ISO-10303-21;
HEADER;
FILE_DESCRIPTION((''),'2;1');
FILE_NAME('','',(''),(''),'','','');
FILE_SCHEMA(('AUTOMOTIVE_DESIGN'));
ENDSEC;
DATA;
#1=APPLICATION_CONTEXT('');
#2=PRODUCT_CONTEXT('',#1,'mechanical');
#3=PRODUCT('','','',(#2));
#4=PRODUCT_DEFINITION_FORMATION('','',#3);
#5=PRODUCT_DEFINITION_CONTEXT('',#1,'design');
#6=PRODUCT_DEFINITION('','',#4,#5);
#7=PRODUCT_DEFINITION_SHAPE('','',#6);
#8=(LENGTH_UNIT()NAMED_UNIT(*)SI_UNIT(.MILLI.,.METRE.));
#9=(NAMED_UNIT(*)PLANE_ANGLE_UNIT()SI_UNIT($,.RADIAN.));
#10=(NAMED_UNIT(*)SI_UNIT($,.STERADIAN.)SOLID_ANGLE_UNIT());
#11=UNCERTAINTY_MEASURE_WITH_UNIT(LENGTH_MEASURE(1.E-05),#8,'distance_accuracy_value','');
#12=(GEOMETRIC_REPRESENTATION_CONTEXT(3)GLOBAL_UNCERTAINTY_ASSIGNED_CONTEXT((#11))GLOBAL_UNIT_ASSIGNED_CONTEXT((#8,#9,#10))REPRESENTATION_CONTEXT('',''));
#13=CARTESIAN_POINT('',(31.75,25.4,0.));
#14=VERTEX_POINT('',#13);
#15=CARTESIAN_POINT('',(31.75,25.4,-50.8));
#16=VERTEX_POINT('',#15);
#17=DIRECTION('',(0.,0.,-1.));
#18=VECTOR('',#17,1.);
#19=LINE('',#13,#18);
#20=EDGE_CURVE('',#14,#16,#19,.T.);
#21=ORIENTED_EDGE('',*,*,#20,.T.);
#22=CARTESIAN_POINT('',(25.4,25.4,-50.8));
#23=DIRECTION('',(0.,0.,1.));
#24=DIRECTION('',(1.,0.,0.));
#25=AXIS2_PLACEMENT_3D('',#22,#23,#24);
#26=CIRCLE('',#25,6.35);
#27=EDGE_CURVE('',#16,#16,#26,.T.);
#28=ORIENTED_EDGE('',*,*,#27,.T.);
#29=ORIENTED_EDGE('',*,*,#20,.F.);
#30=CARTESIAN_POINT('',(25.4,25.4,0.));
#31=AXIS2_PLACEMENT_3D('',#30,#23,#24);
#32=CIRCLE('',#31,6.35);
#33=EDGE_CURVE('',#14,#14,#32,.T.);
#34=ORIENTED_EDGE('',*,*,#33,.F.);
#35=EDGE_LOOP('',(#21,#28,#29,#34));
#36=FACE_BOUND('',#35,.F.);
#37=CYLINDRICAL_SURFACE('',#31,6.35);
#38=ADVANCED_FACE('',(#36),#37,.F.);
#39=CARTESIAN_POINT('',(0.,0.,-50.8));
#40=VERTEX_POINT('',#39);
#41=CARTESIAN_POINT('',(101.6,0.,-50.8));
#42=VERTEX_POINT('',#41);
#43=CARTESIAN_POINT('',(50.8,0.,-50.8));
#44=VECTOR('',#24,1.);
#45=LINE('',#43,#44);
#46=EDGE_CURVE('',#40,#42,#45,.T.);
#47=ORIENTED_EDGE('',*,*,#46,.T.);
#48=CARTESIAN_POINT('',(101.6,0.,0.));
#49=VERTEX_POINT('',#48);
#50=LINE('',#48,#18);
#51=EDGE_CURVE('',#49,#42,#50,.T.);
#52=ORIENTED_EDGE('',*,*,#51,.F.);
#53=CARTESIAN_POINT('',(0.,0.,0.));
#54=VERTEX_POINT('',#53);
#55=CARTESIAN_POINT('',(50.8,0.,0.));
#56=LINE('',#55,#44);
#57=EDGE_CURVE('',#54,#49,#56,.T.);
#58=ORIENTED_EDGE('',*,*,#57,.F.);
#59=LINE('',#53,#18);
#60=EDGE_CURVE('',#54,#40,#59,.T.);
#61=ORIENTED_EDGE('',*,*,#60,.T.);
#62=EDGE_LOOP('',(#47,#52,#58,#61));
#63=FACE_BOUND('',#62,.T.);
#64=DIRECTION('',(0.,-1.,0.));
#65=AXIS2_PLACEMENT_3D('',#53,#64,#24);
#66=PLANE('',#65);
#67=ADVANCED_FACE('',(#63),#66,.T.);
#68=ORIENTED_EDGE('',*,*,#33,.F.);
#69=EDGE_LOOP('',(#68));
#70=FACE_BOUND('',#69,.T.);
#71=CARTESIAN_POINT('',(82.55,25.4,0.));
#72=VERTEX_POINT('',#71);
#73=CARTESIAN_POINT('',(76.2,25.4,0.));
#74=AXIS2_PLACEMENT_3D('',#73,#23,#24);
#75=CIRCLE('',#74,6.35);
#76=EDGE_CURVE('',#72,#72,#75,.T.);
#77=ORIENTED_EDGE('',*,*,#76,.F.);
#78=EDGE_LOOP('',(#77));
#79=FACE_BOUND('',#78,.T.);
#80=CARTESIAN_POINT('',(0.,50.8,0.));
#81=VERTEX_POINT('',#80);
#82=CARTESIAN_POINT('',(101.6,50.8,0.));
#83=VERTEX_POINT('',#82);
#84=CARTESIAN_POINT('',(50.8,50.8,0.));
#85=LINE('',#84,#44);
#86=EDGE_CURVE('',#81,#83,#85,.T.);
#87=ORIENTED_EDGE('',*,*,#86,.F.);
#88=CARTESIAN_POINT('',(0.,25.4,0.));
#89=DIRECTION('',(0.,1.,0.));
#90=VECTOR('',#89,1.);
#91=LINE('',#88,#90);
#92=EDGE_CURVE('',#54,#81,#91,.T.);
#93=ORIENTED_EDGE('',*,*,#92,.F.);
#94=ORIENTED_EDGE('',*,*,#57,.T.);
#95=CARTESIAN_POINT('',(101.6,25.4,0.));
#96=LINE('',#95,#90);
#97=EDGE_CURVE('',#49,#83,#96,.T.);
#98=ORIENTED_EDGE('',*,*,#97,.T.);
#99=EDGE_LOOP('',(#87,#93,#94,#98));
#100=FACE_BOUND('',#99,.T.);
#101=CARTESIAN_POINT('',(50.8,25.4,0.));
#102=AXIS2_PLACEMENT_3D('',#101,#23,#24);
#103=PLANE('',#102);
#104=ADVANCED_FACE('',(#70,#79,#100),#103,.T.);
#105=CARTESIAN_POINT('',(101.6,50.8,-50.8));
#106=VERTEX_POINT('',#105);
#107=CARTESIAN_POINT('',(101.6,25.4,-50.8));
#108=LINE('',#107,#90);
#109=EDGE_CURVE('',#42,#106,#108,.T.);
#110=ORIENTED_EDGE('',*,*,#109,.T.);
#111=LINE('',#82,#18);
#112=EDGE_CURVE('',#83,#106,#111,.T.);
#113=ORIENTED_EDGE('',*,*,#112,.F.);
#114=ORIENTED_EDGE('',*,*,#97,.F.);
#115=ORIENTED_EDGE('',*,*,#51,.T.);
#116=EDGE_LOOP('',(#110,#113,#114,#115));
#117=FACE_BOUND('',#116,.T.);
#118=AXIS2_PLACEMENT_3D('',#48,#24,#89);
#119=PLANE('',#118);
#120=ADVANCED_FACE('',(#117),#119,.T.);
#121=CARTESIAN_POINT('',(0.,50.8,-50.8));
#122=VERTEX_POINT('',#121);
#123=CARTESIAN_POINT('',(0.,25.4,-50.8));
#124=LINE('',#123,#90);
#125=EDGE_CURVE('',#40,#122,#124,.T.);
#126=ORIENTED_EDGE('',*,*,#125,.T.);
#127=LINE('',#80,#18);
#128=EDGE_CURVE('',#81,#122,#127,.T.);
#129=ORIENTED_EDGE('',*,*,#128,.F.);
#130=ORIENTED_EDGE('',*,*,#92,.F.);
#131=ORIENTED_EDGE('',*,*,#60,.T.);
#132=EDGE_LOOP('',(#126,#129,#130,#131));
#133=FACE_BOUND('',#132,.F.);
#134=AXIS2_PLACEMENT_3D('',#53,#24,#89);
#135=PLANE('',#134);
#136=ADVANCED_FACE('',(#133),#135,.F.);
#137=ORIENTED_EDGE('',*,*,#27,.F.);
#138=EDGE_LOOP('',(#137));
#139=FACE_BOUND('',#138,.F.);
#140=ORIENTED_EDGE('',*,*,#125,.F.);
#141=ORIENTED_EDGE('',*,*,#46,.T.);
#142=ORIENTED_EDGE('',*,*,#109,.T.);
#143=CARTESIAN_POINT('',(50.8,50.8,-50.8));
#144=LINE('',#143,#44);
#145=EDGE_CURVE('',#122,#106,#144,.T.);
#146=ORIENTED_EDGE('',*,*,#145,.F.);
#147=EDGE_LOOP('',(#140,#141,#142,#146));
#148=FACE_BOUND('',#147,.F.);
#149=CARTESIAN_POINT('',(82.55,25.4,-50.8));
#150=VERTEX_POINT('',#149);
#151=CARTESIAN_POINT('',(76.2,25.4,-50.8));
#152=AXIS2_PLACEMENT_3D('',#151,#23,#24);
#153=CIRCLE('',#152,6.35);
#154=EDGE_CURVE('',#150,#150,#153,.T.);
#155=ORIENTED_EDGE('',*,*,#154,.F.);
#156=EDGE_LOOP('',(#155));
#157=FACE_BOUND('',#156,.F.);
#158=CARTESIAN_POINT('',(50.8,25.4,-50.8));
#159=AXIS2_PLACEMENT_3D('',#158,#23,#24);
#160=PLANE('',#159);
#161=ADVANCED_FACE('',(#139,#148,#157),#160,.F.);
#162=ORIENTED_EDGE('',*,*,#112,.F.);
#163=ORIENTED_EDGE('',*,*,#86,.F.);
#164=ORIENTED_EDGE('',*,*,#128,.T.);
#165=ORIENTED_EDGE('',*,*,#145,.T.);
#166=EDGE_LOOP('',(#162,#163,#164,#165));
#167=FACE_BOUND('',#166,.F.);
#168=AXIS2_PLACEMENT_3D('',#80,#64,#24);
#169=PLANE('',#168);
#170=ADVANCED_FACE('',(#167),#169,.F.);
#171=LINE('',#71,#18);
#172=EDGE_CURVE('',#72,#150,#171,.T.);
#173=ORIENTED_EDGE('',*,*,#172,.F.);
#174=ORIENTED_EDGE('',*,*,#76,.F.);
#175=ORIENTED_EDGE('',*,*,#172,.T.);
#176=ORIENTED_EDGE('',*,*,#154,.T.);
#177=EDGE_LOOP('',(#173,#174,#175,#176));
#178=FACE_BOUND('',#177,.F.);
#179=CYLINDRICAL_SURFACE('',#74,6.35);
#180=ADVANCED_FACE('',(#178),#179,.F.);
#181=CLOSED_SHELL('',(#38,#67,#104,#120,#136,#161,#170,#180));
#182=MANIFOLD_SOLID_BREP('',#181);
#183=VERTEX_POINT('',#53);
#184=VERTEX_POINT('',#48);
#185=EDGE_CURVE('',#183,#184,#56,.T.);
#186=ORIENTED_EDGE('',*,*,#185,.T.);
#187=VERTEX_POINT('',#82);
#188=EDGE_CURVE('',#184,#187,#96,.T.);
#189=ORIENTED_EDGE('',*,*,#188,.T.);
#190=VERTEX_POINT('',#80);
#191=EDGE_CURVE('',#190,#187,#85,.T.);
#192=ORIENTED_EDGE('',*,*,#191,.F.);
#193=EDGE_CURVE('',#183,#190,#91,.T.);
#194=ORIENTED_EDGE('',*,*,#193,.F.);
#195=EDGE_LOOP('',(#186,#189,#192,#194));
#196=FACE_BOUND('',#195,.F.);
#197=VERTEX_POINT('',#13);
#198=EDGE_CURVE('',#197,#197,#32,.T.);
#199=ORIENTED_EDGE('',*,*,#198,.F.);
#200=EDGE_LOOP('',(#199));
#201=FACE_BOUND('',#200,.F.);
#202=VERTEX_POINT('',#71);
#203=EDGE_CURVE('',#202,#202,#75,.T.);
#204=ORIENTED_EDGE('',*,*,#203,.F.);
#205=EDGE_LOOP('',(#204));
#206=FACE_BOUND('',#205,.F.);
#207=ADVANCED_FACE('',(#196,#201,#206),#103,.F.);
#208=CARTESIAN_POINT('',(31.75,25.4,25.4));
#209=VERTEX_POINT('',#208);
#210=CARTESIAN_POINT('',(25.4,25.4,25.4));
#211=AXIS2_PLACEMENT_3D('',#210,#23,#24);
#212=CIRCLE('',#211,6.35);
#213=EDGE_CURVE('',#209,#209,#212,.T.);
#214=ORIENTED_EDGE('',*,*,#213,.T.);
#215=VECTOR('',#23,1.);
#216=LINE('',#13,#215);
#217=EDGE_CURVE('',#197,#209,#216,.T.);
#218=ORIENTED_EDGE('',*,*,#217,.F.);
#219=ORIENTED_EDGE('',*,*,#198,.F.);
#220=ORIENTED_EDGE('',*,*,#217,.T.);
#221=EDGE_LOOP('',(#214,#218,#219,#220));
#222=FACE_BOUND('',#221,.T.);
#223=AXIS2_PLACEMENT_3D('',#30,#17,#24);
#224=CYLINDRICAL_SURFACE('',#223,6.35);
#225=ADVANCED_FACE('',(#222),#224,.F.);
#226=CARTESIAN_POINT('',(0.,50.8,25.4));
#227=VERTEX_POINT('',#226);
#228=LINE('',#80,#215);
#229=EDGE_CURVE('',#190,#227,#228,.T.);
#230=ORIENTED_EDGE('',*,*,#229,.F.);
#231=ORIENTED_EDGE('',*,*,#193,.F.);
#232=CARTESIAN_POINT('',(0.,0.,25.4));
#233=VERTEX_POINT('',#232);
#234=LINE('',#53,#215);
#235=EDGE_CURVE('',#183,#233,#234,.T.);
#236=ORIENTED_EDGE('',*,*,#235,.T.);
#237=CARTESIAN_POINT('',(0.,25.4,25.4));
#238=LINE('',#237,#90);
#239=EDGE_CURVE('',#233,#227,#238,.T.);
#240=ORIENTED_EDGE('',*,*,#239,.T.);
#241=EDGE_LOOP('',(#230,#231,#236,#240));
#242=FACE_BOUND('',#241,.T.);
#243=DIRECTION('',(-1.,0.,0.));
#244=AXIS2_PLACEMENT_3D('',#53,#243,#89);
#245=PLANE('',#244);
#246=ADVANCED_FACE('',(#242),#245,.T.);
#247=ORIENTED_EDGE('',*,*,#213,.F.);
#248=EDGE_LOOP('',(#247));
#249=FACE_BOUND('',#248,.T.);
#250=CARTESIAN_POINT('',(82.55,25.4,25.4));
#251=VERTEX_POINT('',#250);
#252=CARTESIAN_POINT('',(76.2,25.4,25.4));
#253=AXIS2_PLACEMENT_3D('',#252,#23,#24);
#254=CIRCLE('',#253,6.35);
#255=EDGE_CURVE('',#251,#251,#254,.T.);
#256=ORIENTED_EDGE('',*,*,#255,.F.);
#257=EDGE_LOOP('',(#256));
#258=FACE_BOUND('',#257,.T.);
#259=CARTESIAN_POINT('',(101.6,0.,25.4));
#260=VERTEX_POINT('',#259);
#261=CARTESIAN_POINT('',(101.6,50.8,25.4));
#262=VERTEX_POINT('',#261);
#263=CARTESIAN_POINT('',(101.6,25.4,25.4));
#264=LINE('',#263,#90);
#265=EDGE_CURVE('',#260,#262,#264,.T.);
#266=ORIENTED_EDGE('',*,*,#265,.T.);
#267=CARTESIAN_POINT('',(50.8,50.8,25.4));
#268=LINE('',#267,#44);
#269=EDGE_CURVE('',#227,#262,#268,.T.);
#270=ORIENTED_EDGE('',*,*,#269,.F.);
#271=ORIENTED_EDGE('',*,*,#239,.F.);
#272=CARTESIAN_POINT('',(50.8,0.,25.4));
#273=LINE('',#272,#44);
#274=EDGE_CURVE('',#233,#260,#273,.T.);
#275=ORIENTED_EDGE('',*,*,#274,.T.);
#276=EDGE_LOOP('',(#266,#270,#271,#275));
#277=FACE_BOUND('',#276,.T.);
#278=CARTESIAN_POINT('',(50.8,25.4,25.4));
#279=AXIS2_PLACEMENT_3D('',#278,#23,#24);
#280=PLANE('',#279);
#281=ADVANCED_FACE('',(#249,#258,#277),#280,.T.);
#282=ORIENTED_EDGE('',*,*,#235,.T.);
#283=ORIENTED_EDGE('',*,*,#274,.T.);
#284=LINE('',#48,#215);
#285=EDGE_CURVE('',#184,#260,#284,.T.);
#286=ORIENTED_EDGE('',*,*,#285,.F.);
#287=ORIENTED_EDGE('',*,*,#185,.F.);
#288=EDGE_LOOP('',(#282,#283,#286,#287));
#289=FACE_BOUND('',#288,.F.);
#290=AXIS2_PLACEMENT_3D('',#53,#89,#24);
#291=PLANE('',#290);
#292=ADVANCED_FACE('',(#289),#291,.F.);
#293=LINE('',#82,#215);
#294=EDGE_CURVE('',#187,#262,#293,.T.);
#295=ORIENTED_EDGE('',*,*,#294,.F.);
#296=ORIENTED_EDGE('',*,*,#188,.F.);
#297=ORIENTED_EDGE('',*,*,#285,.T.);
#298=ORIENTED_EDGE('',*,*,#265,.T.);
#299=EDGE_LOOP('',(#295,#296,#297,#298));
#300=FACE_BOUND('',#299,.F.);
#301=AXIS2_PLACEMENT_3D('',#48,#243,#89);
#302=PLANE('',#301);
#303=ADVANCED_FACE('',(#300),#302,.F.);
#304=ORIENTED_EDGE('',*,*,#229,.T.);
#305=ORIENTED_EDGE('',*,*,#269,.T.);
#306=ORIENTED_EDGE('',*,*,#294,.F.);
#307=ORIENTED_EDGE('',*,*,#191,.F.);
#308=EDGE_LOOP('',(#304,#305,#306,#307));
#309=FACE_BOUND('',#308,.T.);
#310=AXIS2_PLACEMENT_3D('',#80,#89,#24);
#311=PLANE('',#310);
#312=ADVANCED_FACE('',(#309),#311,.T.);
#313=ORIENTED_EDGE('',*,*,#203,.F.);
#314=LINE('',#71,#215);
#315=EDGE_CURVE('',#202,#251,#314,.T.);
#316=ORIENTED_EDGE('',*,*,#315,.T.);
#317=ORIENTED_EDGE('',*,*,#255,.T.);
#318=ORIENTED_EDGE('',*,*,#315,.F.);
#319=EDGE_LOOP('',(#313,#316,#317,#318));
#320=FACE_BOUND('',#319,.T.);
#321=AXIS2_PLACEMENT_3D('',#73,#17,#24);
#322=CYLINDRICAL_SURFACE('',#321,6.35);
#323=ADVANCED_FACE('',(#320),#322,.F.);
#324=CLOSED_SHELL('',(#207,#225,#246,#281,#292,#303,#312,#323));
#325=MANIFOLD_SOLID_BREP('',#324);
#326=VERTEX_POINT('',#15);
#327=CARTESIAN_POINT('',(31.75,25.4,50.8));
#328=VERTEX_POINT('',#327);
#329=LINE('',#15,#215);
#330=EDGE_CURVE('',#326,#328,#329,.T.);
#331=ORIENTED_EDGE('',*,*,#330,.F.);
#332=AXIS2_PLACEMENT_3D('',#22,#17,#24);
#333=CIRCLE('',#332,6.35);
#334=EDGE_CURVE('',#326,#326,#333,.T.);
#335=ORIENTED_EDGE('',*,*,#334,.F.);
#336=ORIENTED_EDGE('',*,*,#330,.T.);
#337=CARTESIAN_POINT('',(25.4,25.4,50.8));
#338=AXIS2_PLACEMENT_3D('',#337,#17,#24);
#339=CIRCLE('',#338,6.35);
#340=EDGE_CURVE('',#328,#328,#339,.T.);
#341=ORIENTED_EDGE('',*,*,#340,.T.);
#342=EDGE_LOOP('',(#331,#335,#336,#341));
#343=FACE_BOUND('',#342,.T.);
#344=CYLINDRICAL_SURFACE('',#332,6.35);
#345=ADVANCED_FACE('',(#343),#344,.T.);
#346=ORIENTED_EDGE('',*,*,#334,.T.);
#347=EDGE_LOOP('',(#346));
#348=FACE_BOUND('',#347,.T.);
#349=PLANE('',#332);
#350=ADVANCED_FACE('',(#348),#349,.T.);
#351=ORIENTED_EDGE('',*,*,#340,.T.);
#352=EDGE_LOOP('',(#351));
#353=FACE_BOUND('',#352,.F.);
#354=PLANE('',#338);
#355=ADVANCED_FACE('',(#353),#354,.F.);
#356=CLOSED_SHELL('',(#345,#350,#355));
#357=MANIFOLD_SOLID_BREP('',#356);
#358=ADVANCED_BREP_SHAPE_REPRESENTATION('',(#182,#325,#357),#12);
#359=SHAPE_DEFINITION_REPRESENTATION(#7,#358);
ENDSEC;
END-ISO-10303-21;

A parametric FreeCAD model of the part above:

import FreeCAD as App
import Part
import Sketcher

V = App.Vector
Q = App.Units.Quantity


def add_polygon(sketch, points):
    """Adds a closed chain of lines whose ends are joined by coincident constraints."""
    first, n = sketch.GeometryCount, len(points)
    for a, b in zip(points, points[1:] + points[:1]):
        sketch.addGeometry(Part.LineSegment(App.Vector(*a, 0), App.Vector(*b, 0)), False)
    for i in range(n):
        sketch.addConstraint(Sketcher.Constraint("Coincident", first + i, 2, first + (i + 1) % n, 1))

doc = App.newDocument("Part")
params = doc.addObject("Spreadsheet::Sheet", "Params")
for row, (alias, value) in enumerate([
    ("sketch1_diameter", "0.5 in"),
    ("sketch1_width", "4 in"),
    ("sketch1_height", "2 in"),
    ("pad1_length", "1 in"),
    ("sketch2_diameter", "0.5 in"),
    ("sketch2_width", "4 in"),
    ("sketch2_height", "2 in"),
    ("pad2_length", "2 in"),
    ("sketch3_diameter", "0.5 in"),
    ("pad3_length", "4 in"),
], start=1):
    params.set(f"A{row}", alias)
    params.set(f"B{row}", "=" + value)
    params.setAlias(f"B{row}", alias)

body = doc.addObject("PartDesign::Body", "Body")

# Sketch on XY plane
sketch1 = doc.addObject("Sketcher::SketchObject", "Sketch")
body.addObject(sketch1)
sketch1.AttachmentSupport = (doc.XY_Plane, [""])
sketch1.MapMode = "FlatFace"
add_polygon(sketch1, [(0, 51), (0, 0), (102, 0), (102, 51)])  # lines 0-3
sketch1.addGeometry(Part.Circle(V(25, 25, 0), V(0, 0, 1), 6), False)  # 4
sketch1.addGeometry(Part.Circle(V(76, 25, 0), V(0, 0, 1), 6), False)  # 5
sketch1.addConstraint([
    Sketcher.Constraint("Vertical", 0),
    Sketcher.Constraint("Horizontal", 1),
    Sketcher.Constraint("Vertical", 2),
    Sketcher.Constraint("Horizontal", 3),
    Sketcher.Constraint("Coincident", 0, 2, -1, 1),
    Sketcher.Constraint("Equal", 4, 5),
    Sketcher.Constraint("Horizontal", 4, 3, 5, 3),
    Sketcher.Constraint("Diameter", 4, Q("0.5 in")),
    Sketcher.Constraint("DistanceX", 1, 1, 1, 2, Q("4 in")),
    Sketcher.Constraint("DistanceY", 0, 2, 0, 1, Q("2 in")),
    Sketcher.Constraint("DistanceX", -1, 1, 4, 3, Q("1 in")),
    Sketcher.Constraint("DistanceY", -1, 1, 4, 3, Q("1 in")),
    Sketcher.Constraint("DistanceX", -1, 1, 5, 3, Q("3 in")),
])
sketch1.setExpression("Constraints[11]", "Params.sketch1_diameter")
sketch1.setExpression("Constraints[12]", "Params.sketch1_width")
sketch1.setExpression("Constraints[13]", "Params.sketch1_height")
pad1 = doc.addObject("PartDesign::Pad", "Pad")
body.addObject(pad1)
pad1.Profile = sketch1
pad1.setExpression("Length", "Params.pad1_length")
body2 = doc.addObject("PartDesign::Body", "Body001")

# Sketch on XY plane
sketch2 = doc.addObject("Sketcher::SketchObject", "Sketch001")
body2.addObject(sketch2)
sketch2.AttachmentSupport = (doc.getObject("XY_Plane001"), [""])
sketch2.MapMode = "FlatFace"
add_polygon(sketch2, [(0, 51), (0, 0), (102, 0), (102, 51)])  # lines 0-3
sketch2.addGeometry(Part.Circle(V(25, 25, 0), V(0, 0, 1), 6), False)  # 4
sketch2.addGeometry(Part.Circle(V(76, 25, 0), V(0, 0, 1), 6), False)  # 5
sketch2.addConstraint([
    Sketcher.Constraint("Vertical", 0),
    Sketcher.Constraint("Horizontal", 1),
    Sketcher.Constraint("Vertical", 2),
    Sketcher.Constraint("Horizontal", 3),
    Sketcher.Constraint("Coincident", 0, 2, -1, 1),
    Sketcher.Constraint("Equal", 4, 5),
    Sketcher.Constraint("Horizontal", 4, 3, 5, 3),
    Sketcher.Constraint("Diameter", 4, Q("0.5 in")),
    Sketcher.Constraint("DistanceX", 1, 1, 1, 2, Q("4 in")),
    Sketcher.Constraint("DistanceY", 0, 2, 0, 1, Q("2 in")),
    Sketcher.Constraint("DistanceX", -1, 1, 4, 3, Q("1 in")),
    Sketcher.Constraint("DistanceY", -1, 1, 4, 3, Q("1 in")),
    Sketcher.Constraint("DistanceX", -1, 1, 5, 3, Q("3 in")),
])
sketch2.setExpression("Constraints[11]", "Params.sketch2_diameter")
sketch2.setExpression("Constraints[12]", "Params.sketch2_width")
sketch2.setExpression("Constraints[13]", "Params.sketch2_height")
pad2 = doc.addObject("PartDesign::Pad", "Pad001")
body2.addObject(pad2)
pad2.Profile = sketch2
pad2.setExpression("Length", "Params.pad2_length")
pad2.Reversed = True
body3 = doc.addObject("PartDesign::Body", "Body002")

# Sketch on XY plane
sketch3 = doc.addObject("Sketcher::SketchObject", "Sketch002")
body3.addObject(sketch3)
sketch3.AttachmentSupport = (doc.getObject("XY_Plane002"), [""])
sketch3.MapMode = "FlatFace"
sketch3.AttachmentOffset = App.Placement(V(0, 0, -2 * 25.4), App.Rotation())
sketch3.addGeometry(Part.Circle(V(25, 25, 0), V(0, 0, 1), 6), False)
sketch3.addConstraint([
    Sketcher.Constraint("Diameter", 0, Q("0.5 in")),
    Sketcher.Constraint("DistanceX", -1, 1, 0, 3, Q("1 in")),
    Sketcher.Constraint("DistanceY", -1, 1, 0, 3, Q("1 in")),
])
sketch3.setExpression("Constraints[0]", "Params.sketch3_diameter")
pad3 = doc.addObject("PartDesign::Pad", "Pad002")
body3.addObject(pad3)
pad3.Profile = sketch3
pad3.setExpression("Length", "Params.pad3_length")

doc.recompute()
